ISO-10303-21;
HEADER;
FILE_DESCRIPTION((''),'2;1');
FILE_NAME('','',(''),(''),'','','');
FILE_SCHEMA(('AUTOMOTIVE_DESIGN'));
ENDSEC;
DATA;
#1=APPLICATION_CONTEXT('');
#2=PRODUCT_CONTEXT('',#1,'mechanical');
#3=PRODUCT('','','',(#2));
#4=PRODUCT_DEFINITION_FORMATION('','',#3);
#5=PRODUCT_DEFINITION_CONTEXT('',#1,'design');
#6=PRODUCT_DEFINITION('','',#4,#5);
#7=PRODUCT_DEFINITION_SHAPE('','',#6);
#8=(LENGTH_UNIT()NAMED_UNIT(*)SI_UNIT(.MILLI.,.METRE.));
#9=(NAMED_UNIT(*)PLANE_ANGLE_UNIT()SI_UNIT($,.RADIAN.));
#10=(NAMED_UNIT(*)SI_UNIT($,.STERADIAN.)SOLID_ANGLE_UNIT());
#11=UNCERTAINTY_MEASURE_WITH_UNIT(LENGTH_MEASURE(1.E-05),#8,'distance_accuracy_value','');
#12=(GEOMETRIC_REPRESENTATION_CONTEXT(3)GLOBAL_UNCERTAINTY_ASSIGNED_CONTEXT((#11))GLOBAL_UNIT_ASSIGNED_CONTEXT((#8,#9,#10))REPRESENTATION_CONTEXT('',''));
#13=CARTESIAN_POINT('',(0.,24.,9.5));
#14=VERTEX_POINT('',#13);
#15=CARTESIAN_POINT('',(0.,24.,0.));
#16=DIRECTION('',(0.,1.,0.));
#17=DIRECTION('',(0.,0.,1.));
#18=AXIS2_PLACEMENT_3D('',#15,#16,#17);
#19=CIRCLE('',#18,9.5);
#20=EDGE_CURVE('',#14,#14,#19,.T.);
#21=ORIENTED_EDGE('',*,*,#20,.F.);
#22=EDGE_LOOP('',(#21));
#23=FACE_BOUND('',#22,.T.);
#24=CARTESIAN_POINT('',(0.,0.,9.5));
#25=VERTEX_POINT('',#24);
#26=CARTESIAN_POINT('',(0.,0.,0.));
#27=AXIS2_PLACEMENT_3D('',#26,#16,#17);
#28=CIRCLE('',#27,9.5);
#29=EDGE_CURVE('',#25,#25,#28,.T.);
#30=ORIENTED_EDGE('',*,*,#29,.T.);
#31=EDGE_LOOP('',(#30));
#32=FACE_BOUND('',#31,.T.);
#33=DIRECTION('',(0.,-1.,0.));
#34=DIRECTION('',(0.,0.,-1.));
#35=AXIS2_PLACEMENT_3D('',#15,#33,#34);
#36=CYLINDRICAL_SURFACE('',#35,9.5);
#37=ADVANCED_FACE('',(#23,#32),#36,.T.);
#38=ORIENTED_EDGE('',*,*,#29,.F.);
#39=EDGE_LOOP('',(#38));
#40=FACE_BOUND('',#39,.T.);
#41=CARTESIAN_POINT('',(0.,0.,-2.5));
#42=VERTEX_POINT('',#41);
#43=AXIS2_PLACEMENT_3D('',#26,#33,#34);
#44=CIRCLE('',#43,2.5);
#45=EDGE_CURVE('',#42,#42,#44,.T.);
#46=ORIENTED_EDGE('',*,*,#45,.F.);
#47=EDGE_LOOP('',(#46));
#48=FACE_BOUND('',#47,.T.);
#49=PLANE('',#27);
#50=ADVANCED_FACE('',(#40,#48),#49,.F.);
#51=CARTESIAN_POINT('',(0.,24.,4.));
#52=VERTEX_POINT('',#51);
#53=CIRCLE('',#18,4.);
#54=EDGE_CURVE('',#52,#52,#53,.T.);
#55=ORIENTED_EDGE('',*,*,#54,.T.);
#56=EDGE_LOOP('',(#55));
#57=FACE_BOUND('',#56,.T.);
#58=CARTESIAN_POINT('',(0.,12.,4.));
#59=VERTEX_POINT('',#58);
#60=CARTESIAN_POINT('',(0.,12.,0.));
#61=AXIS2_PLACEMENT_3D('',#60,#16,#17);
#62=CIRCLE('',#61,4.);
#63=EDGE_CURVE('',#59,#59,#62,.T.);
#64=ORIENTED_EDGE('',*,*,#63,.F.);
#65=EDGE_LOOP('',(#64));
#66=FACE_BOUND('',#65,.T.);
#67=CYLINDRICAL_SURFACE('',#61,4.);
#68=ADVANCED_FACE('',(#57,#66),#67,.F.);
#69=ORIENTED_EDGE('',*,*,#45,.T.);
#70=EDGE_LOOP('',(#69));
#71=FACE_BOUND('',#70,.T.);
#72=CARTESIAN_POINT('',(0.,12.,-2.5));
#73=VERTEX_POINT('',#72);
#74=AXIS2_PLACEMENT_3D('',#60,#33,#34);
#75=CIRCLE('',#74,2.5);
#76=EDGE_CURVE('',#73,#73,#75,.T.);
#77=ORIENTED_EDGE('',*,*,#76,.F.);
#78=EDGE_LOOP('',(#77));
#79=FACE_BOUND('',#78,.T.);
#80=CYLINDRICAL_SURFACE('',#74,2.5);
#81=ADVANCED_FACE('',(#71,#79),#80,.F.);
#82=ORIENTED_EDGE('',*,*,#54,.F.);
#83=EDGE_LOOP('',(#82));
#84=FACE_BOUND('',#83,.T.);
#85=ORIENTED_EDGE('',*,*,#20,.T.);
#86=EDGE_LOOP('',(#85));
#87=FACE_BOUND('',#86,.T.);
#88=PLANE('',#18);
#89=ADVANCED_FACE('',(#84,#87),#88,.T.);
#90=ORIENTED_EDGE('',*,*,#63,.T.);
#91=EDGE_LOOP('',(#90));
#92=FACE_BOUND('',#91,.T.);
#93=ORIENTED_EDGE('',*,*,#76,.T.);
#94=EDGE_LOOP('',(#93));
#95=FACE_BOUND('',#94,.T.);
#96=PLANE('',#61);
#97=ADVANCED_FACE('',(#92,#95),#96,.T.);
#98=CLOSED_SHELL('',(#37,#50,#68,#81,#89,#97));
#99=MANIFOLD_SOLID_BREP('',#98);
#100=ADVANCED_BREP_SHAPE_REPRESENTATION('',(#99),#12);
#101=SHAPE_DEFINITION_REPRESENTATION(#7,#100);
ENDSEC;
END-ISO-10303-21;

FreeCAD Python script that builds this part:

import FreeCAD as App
import Part
import Sketcher
from FreeCAD import Vector

doc = App.newDocument("Part")
body = doc.addObject("PartDesign::Body", "Body")

sketch1 = doc.addObject("Sketcher::SketchObject", "Sketch")
body.addObject(sketch1)
sketch1.AttachmentSupport = (doc.XZ_Plane, [""])
sketch1.MapMode = "FlatFace"
sketch1.addGeometry(Part.Circle(Vector(0, 0, 0), Vector(0, 0, 1), 10), False)
sketch1.addConstraint([
    Sketcher.Constraint("Coincident", 0, 3, -1, 1),
    Sketcher.Constraint("Diameter", 0, 19.0),
])
pad1 = doc.addObject("PartDesign::Pad", "Pad")
body.addObject(pad1)
pad1.Profile = sketch1
pad1.Length = 24
pad1.Reversed = True

sketch2 = doc.addObject("Sketcher::SketchObject", "Sketch001")
body.addObject(sketch2)
sketch2.AttachmentSupport = (doc.XZ_Plane, [""])
sketch2.MapMode = "FlatFace"
sketch2.AttachmentOffset = App.Placement(Vector(0, 0, -24), App.Rotation())
sketch2.addGeometry(Part.Circle(Vector(0, 0, 0), Vector(0, 0, 1), 4), False)
sketch2.addConstraint([
    Sketcher.Constraint("Coincident", 0, 3, -1, 1),
    Sketcher.Constraint("Diameter", 0, 8.0),
])
pocket1 = doc.addObject("PartDesign::Pocket", "Pocket")
body.addObject(pocket1)
pocket1.Profile = sketch2
pocket1.Length = 12
pocket1.Reversed = True

sketch3 = doc.addObject("Sketcher::SketchObject", "Sketch002")
body.addObject(sketch3)
sketch3.AttachmentSupport = (doc.XZ_Plane, [""])
sketch3.MapMode = "FlatFace"
sketch3.addGeometry(Part.Circle(Vector(0, 0, 0), Vector(0, 0, 1), 2.5), False)
sketch3.addConstraint([
    Sketcher.Constraint("Coincident", 0, 3, -1, 1),
    Sketcher.Constraint("Diameter", 0, 5.0),
])
pocket2 = doc.addObject("PartDesign::Pocket", "Pocket001")
body.addObject(pocket2)
pocket2.Profile = sketch3
pocket2.Length = 12

doc.recompute()
